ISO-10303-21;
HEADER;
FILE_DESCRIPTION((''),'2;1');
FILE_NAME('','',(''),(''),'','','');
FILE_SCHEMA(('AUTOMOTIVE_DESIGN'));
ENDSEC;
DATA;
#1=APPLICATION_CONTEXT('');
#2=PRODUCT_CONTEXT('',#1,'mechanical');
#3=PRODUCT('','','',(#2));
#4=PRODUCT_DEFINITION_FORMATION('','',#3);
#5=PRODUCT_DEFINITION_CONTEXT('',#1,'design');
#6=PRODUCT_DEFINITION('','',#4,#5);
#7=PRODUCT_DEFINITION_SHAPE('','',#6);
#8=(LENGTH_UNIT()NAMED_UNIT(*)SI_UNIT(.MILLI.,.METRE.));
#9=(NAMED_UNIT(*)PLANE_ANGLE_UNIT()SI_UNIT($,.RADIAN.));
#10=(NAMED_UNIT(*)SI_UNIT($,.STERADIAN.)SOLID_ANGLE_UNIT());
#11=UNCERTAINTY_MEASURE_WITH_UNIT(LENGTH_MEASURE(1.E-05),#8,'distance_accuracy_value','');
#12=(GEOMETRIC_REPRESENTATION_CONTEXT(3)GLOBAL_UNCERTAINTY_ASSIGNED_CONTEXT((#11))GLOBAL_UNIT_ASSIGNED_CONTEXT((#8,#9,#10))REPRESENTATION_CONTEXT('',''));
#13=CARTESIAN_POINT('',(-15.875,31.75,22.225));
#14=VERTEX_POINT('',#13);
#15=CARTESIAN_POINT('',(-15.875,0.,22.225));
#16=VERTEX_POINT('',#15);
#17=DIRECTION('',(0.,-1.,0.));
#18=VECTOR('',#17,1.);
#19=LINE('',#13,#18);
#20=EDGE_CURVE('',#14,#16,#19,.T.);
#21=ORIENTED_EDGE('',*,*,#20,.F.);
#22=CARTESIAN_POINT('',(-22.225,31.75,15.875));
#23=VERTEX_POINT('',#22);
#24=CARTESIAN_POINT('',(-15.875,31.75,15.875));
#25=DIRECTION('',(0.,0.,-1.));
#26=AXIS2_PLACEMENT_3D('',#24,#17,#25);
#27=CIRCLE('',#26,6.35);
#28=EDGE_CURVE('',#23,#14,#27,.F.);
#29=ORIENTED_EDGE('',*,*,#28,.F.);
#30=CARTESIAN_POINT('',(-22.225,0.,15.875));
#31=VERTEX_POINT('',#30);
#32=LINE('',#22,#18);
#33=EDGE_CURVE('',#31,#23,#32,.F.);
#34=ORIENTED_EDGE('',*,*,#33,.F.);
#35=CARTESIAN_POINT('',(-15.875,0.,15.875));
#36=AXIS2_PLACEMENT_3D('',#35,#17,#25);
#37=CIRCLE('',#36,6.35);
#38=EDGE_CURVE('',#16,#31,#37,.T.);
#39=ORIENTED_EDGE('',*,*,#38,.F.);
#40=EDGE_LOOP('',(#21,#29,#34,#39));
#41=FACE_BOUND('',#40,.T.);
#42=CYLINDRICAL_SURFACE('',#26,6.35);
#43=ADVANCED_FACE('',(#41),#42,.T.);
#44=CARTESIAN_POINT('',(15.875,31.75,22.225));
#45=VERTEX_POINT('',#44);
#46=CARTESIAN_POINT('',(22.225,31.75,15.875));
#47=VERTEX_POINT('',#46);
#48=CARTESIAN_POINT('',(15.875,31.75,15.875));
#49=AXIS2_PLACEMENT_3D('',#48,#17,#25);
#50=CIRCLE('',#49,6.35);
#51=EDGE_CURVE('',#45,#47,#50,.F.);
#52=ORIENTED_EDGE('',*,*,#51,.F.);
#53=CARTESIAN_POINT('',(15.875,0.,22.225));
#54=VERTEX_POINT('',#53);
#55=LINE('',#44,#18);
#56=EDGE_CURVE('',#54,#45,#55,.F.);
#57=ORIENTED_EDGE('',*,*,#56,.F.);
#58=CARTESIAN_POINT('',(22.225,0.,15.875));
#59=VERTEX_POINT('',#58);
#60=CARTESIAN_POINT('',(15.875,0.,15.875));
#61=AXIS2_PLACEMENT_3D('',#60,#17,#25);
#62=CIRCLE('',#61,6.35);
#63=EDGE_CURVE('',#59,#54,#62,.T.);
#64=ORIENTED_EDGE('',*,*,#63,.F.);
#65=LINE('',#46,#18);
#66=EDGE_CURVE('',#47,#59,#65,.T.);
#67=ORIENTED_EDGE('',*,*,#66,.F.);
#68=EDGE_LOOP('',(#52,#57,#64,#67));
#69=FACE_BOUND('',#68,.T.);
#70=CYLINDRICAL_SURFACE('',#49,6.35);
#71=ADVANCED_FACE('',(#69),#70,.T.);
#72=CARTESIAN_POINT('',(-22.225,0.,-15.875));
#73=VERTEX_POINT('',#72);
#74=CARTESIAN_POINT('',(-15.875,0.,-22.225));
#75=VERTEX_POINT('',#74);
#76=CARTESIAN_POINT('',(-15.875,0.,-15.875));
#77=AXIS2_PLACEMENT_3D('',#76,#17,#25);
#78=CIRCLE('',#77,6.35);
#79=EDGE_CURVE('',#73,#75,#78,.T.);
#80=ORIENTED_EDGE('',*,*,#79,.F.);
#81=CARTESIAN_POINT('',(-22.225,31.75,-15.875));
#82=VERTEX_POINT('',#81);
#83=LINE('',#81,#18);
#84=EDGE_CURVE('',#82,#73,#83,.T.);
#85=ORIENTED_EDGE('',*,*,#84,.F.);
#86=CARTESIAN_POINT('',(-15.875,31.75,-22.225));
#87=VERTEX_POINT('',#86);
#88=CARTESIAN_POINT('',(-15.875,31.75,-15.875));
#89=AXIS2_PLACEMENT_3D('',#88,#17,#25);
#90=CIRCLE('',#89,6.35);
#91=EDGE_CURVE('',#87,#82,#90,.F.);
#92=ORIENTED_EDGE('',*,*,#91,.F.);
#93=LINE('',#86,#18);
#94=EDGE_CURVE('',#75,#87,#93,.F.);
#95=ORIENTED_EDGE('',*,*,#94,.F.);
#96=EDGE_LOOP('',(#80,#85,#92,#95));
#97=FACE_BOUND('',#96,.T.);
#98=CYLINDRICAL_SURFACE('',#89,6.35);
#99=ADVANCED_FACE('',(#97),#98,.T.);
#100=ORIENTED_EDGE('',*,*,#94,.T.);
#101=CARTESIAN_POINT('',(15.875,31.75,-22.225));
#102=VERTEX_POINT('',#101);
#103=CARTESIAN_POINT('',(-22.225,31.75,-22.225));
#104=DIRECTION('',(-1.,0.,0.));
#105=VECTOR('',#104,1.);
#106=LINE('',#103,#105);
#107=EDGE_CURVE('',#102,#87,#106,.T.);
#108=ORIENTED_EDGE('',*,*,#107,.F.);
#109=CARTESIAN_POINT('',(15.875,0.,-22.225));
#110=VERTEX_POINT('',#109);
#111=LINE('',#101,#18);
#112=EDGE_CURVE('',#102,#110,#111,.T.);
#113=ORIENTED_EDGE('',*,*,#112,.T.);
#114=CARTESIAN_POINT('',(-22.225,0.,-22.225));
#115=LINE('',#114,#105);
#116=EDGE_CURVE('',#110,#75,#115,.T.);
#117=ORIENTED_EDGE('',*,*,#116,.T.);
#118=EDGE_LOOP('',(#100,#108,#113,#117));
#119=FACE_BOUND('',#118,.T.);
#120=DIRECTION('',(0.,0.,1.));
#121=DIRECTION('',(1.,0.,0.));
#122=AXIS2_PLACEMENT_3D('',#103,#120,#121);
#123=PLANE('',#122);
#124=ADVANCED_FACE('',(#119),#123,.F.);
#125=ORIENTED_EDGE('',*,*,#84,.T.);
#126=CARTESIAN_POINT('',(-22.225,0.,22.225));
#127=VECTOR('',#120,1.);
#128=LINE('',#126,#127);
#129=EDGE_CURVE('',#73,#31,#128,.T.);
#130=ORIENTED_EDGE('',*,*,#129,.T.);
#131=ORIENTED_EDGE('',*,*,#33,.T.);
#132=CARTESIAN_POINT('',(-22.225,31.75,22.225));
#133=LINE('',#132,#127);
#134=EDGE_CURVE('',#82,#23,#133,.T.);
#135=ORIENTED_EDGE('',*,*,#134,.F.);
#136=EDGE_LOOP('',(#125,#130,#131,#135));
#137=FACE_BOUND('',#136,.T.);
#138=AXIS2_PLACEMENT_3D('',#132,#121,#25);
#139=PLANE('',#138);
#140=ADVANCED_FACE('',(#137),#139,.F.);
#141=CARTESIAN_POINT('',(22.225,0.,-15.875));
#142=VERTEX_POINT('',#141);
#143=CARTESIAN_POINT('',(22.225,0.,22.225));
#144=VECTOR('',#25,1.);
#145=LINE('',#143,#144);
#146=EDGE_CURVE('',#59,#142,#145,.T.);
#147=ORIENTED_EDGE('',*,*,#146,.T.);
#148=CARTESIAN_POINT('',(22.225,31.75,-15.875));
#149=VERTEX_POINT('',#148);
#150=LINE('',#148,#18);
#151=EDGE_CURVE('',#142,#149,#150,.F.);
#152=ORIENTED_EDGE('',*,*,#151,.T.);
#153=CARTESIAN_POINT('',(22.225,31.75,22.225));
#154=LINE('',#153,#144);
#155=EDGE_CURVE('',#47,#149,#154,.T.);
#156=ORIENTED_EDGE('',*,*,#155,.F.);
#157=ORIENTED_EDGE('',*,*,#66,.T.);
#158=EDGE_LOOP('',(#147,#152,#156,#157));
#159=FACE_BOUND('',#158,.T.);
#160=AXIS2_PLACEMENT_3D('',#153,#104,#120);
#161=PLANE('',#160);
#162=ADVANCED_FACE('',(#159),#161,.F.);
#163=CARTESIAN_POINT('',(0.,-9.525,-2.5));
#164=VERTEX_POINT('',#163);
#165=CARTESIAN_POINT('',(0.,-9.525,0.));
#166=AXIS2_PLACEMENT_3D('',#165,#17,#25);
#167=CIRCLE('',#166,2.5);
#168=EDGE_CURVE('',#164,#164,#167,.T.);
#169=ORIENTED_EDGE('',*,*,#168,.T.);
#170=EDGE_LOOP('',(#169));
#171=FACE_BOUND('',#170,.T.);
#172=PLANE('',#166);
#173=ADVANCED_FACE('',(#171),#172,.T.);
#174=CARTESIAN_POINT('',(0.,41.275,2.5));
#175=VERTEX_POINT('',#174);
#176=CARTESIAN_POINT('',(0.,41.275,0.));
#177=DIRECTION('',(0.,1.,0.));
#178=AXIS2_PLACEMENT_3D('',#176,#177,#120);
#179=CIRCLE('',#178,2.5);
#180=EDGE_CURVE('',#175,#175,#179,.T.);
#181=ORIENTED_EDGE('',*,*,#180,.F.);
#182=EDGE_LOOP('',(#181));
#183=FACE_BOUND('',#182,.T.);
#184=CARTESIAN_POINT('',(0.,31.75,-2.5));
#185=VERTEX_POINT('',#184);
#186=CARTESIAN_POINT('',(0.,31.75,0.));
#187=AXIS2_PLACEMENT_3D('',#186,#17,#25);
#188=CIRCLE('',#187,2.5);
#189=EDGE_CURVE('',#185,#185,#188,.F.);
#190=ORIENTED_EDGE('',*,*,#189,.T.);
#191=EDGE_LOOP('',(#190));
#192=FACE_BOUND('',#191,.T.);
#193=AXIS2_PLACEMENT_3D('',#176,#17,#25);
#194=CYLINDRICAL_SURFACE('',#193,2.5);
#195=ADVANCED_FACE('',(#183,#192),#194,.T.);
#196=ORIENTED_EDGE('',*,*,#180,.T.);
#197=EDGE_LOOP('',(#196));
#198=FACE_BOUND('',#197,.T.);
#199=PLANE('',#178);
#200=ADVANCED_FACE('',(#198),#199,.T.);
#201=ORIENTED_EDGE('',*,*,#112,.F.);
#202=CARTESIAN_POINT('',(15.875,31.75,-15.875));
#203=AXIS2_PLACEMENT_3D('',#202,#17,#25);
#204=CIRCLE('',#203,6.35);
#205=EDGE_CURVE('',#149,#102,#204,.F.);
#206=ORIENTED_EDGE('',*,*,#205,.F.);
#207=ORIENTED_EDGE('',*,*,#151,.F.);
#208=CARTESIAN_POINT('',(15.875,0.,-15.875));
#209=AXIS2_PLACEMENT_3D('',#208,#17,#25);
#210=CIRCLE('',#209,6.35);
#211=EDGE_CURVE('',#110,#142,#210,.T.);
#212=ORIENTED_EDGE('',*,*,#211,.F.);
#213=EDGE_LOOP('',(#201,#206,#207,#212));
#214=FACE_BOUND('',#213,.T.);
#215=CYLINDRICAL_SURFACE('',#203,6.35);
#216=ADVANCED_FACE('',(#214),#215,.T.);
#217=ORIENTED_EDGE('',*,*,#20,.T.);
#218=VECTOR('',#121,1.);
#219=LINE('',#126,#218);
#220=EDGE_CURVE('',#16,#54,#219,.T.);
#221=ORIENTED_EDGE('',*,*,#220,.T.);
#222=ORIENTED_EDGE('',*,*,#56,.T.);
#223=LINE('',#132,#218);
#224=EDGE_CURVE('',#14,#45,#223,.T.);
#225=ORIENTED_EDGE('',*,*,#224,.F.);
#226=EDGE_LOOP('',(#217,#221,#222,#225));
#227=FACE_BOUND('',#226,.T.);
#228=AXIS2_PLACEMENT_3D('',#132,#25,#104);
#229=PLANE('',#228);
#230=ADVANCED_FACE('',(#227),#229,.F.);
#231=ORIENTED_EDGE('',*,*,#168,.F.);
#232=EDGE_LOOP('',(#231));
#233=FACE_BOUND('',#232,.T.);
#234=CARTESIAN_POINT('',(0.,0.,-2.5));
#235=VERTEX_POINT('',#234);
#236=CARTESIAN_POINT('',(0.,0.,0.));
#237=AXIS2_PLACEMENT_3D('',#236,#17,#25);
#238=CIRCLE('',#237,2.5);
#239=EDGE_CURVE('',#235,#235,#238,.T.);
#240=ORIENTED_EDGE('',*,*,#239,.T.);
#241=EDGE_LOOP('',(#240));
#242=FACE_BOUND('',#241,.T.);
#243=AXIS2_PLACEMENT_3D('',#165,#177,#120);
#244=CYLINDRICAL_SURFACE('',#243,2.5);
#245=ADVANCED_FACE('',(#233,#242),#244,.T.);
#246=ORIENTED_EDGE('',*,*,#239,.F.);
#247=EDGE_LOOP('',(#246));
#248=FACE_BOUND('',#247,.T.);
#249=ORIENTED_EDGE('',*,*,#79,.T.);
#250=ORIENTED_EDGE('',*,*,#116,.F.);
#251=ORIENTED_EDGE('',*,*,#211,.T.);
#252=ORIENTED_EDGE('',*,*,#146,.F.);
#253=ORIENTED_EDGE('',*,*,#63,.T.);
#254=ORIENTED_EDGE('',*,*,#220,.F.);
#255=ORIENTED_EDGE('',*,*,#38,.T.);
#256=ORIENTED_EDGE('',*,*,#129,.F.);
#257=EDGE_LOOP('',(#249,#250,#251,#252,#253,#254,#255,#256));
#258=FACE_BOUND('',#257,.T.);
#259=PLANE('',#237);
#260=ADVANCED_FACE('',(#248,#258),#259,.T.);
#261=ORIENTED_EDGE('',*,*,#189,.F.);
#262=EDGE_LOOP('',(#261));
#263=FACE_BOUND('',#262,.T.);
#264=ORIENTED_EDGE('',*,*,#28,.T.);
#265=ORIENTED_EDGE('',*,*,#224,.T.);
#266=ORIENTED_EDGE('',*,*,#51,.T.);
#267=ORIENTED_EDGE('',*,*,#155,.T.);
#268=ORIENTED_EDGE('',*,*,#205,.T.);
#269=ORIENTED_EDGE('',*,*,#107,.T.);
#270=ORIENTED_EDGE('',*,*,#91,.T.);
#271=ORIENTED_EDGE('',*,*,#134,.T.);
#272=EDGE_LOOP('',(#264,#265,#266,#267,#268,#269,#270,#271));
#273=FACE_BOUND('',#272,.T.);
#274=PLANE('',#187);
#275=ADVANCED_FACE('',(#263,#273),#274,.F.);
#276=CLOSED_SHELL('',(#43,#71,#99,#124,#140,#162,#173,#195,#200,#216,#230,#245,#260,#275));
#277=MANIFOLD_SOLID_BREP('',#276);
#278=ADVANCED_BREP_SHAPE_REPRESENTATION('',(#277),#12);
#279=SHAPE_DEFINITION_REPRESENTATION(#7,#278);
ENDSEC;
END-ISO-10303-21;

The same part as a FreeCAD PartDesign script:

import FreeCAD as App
import Part
import Sketcher
Q = App.Units.Quantity


def edges_at(feature, points):
    """Names of the edges that pass closest to the given points."""
    edges = feature.Shape.Edges
    near = lambda p: min(range(len(edges)), key=lambda i: edges[i].distToShape(Part.Vertex(*p))[0])
    return sorted({f"Edge{near(p) + 1}" for p in points})

doc = App.newDocument("Part")
body = doc.addObject("PartDesign::Body", "Body")

# Sketch on XZ plane
sketch1 = doc.addObject("Sketcher::SketchObject", "Sketch")
body.addObject(sketch1)
sketch1.AttachmentSupport = (doc.XZ_Plane, [""])
sketch1.MapMode = "FlatFace"
sketch1.addGeometry(Part.LineSegment(App.Vector(-22, -22, 0), App.Vector(-22, 22, 0)), False)
sketch1.addGeometry(Part.LineSegment(App.Vector(-22, 22, 0), App.Vector(22, 22, 0)), False)
sketch1.addGeometry(Part.LineSegment(App.Vector(22, 22, 0), App.Vector(22, -22, 0)), False)
sketch1.addGeometry(Part.LineSegment(App.Vector(22, -22, 0), App.Vector(-22, -22, 0)), False)
sketch1.addConstraint(Sketcher.Constraint("Coincident", 0, 2, 1, 1))
sketch1.addConstraint(Sketcher.Constraint("Coincident", 1, 2, 2, 1))
sketch1.addConstraint(Sketcher.Constraint("Coincident", 2, 2, 3, 1))
sketch1.addConstraint(Sketcher.Constraint("Coincident", 3, 2, 0, 1))
sketch1.addConstraint(Sketcher.Constraint("Vertical", 0))
sketch1.addConstraint(Sketcher.Constraint("Horizontal", 1))
sketch1.addConstraint(Sketcher.Constraint("Vertical", 2))
sketch1.addConstraint(Sketcher.Constraint("Horizontal", 3))
sketch1.addConstraint(Sketcher.Constraint("Symmetric", 0, 2, 2, 2, -1, 1))
sketch1.addConstraint(Sketcher.Constraint("Equal", 3, 0))
sketch1.addConstraint(Sketcher.Constraint("DistanceX", 1, 1, 1, 2, Q("1.75 in")))
pad1 = doc.addObject("PartDesign::Pad", "Pad")
body.addObject(pad1)
pad1.Profile = sketch1
pad1.Length = Q("1.25 in")
pad1.Reversed = True
doc.recompute()

fillet = doc.addObject("PartDesign::Fillet", "Fillet")
body.addObject(fillet)
fillet.Base = (pad1, edges_at(pad1, [
    (22.225, 15.875, 22.225),
    (-22.225, 15.875, 22.225),
    (-22.225, 15.875, -22.225),
    (22.225, 15.875, -22.225),
]))
fillet.Radius = Q("0.25 in")

# Sketch on XZ plane
sketch2 = doc.addObject("Sketcher::SketchObject", "Sketch001")
body.addObject(sketch2)
sketch2.AttachmentSupport = (doc.XZ_Plane, [""])
sketch2.MapMode = "FlatFace"
sketch2.AttachmentOffset = App.Placement(App.Vector(0, 0, -1.25 * 25.4), App.Rotation())
sketch2.addGeometry(Part.Circle(App.Vector(0, 0, 0), App.Vector(0, 0, 1), 2.5), False)
sketch2.addConstraint(Sketcher.Constraint("Coincident", 0, 3, -1, 1))
sketch2.addConstraint(Sketcher.Constraint("Diameter", 0, Q("5 mm")))
pad2 = doc.addObject("PartDesign::Pad", "Pad001")
body.addObject(pad2)
pad2.Profile = sketch2
pad2.Length = Q("0.375 in")
pad2.Reversed = True

# Sketch on XZ plane
sketch3 = doc.addObject("Sketcher::SketchObject", "Sketch002")
body.addObject(sketch3)
sketch3.AttachmentSupport = (doc.XZ_Plane, [""])
sketch3.MapMode = "FlatFace"
sketch3.addGeometry(Part.Circle(App.Vector(0, 0, 0), App.Vector(0, 0, 1), 2.5), False)
sketch3.addConstraint(Sketcher.Constraint("Coincident", 0, 3, -1, 1))
sketch3.addConstraint(Sketcher.Constraint("Diameter", 0, Q("5 mm")))
pad3 = doc.addObject("PartDesign::Pad", "Pad002")
body.addObject(pad3)
pad3.Profile = sketch3
pad3.Length = Q("0.375 in")

doc.recompute()
